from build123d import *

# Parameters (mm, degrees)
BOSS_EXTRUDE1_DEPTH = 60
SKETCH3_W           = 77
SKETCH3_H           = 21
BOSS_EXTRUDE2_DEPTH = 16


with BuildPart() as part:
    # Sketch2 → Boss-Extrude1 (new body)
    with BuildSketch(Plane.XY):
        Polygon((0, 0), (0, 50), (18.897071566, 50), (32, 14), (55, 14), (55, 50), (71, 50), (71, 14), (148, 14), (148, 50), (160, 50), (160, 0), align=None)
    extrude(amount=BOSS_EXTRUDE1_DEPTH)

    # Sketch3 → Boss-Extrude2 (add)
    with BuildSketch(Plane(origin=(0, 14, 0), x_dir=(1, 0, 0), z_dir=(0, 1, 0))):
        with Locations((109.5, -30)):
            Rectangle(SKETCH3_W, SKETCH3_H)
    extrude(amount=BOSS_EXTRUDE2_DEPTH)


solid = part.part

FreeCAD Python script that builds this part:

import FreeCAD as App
import Part
import Sketcher
Q = App.Units.Quantity


def add_polygon(sketch, points):
    """Adds a closed chain of lines whose ends are joined by coincident constraints."""
    first, n = sketch.GeometryCount, len(points)
    for a, b in zip(points, points[1:] + points[:1]):
        sketch.addGeometry(Part.LineSegment(App.Vector(*a, 0), App.Vector(*b, 0)), False)
    for i in range(n):
        sketch.addConstraint(Sketcher.Constraint("Coincident", first + i, 2, first + (i + 1) % n, 1))

doc = App.newDocument("Part")
body = doc.addObject("PartDesign::Body", "Body")

sketch1 = body.newObject("Sketcher::SketchObject", "Sketch")
sketch1.AttachmentSupport = (doc.getObject("XY_Plane"), [""])
sketch1.MapMode = "FlatFace"
add_polygon(sketch1, [(0, 50), (0, 0), (160, 0), (160, 50), (148, 50), (148, 14), (71, 14), (71, 50), (55, 50), (55, 14), (32, 14), (19, 50)])
sketch1.addConstraint([
    Sketcher.Constraint("Vertical", 0),
    Sketcher.Constraint("Horizontal", 1),
    Sketcher.Constraint("Vertical", 2),
    Sketcher.Constraint("Horizontal", 3),
    Sketcher.Constraint("Vertical", 4),
    Sketcher.Constraint("Horizontal", 5),
    Sketcher.Constraint("Vertical", 6),
    Sketcher.Constraint("Horizontal", 7),
    Sketcher.Constraint("Vertical", 8),
    Sketcher.Constraint("Horizontal", 9),
    Sketcher.Constraint("Horizontal", 11),
    Sketcher.Constraint("Coincident", 0, 2, -1, 1),
    Sketcher.Constraint("Horizontal", 3, 2, 6, 2),
    Sketcher.Constraint("Horizontal", 5, 2, 8, 2),
    Sketcher.Constraint("Horizontal", 7, 2, 10, 2),
    Sketcher.Constraint("DistanceX", 1, 1, 1, 2, 160.0),
    Sketcher.Constraint("DistanceX", 3, 2, 3, 1, 12.0),
    Sketcher.Constraint("DistanceX", 5, 2, 5, 1, 77.0),
    Sketcher.Constraint("DistanceX", 7, 2, 7, 1, 16.0),
    Sketcher.Constraint("DistanceX", 9, 2, 9, 1, 23.0),
    Sketcher.Constraint("DistanceY", 0, 2, 0, 1, 50.0),
    Sketcher.Constraint("DistanceY", 4, 2, 4, 1, 36.0),
    Sketcher.Constraint("Angle", 10, Q("110 deg")),
])
pad1 = body.newObject("PartDesign::Pad", "Pad")
pad1.Profile = sketch1
pad1.Length = 60

sketch2 = body.newObject("Sketcher::SketchObject", "Sketch001")
sketch2.AttachmentSupport = (doc.getObject("XZ_Plane"), [""])
sketch2.MapMode = "FlatFace"
sketch2.AttachmentOffset = App.Placement(App.Vector(0, 0, -14), App.Rotation())
add_polygon(sketch2, [(71, 20), (71, 40), (148, 40), (148, 20)])
sketch2.addConstraint([
    Sketcher.Constraint("Vertical", 0),
    Sketcher.Constraint("Horizontal", 1),
    Sketcher.Constraint("Vertical", 2),
    Sketcher.Constraint("Horizontal", 3),
    Sketcher.Constraint("DistanceX", 1, 1, 1, 2, 77.0),
    Sketcher.Constraint("DistanceY", 0, 1, 0, 2, 21.0),
    Sketcher.Constraint("DistanceX", -1, 1, 0, 2, 71.0),
    Sketcher.Constraint("DistanceY", -1, 1, 0, 2, 40.5),
])
pad2 = body.newObject("PartDesign::Pad", "Pad001")
pad2.Profile = sketch2
pad2.Length = 16
pad2.Reversed = True

doc.recompute()
